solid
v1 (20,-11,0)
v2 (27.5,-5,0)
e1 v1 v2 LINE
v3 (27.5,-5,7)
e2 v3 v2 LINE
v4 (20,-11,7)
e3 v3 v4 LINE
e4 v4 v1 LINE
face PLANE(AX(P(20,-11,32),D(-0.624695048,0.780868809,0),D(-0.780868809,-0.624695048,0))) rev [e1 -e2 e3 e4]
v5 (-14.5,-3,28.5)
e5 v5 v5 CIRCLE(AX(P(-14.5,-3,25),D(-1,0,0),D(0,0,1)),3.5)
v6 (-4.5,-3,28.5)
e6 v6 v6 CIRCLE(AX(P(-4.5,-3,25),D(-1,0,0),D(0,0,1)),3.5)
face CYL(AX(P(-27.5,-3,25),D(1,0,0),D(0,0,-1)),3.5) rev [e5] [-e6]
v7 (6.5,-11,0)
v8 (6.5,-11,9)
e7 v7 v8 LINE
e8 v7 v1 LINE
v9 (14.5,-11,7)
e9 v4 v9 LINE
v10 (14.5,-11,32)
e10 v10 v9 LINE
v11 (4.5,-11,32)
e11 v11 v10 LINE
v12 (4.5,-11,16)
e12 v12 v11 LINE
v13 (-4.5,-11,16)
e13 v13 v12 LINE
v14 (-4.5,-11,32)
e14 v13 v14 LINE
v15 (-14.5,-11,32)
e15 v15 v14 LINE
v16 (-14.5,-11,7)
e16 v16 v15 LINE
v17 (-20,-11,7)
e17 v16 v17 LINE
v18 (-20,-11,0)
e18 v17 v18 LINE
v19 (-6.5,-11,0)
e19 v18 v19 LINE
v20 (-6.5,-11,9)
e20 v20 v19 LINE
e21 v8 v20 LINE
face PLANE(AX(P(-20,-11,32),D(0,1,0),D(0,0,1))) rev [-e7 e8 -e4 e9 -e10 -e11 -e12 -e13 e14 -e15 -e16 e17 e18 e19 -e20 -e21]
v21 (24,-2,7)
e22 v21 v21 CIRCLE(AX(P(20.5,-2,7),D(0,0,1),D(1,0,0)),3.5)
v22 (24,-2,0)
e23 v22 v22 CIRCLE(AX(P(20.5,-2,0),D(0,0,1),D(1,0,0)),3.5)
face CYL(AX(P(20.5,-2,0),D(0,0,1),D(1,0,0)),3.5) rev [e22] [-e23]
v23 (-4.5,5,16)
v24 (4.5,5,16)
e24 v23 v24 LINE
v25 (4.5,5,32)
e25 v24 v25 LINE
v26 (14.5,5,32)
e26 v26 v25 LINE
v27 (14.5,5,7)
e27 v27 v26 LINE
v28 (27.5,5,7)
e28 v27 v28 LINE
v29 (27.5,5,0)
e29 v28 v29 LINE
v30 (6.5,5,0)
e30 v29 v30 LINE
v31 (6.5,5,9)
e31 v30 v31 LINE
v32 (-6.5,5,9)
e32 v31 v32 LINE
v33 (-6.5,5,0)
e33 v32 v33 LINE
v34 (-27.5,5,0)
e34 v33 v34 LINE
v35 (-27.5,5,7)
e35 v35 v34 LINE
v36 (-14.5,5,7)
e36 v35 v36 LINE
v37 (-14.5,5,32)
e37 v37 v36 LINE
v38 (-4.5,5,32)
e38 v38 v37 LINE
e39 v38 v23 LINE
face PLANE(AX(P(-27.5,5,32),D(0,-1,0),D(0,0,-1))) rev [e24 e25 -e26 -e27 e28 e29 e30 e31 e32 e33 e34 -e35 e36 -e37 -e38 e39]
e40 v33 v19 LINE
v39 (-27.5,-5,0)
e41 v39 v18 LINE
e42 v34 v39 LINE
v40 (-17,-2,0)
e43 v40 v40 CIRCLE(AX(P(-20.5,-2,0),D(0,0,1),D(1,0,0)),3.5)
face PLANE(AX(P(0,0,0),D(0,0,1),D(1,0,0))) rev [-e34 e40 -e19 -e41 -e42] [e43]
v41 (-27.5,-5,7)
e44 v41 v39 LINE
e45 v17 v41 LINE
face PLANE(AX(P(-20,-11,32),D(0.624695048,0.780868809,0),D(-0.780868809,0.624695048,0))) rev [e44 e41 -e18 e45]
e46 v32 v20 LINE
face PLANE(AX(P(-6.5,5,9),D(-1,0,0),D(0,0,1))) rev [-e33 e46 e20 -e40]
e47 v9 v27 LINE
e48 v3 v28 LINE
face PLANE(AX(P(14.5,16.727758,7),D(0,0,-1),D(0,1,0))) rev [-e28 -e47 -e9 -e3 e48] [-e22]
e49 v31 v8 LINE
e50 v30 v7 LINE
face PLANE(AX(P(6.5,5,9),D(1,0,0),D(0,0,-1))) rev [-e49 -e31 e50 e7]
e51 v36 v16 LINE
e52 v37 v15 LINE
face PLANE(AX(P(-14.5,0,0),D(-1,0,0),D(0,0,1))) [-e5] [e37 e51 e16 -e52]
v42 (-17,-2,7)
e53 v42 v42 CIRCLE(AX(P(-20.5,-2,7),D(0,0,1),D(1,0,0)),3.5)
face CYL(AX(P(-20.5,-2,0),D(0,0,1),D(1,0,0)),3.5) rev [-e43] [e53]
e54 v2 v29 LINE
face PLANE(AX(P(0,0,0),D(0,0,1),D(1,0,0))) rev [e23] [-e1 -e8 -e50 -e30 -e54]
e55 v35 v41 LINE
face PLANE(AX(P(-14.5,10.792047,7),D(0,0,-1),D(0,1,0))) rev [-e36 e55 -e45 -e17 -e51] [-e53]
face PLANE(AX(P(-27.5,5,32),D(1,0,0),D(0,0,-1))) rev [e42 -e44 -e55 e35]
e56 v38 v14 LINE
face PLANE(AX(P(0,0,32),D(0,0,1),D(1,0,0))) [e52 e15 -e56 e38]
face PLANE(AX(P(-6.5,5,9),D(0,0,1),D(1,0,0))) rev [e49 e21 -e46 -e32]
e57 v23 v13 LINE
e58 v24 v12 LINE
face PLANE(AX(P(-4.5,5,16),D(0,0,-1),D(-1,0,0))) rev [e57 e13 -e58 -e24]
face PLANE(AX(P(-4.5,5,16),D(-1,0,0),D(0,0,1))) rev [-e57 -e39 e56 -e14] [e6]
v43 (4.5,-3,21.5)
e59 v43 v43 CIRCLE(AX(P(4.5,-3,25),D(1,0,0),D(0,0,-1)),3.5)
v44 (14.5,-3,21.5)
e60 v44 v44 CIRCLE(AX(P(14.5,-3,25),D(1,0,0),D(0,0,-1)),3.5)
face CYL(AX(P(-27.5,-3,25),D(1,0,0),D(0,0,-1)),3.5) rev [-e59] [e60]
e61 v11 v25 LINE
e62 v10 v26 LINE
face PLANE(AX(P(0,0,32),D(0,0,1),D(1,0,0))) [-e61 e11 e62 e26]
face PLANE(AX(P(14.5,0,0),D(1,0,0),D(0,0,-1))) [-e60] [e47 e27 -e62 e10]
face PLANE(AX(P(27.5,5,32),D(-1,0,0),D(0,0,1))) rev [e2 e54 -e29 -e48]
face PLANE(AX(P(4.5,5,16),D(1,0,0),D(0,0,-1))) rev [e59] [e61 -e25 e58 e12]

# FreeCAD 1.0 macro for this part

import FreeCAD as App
import Part
import Sketcher
Q = App.Units.Quantity

doc = App.newDocument("Part")
body = doc.addObject("PartDesign::Body", "Body")

# Sketch on XY plane
sketch1 = body.newObject("Sketcher::SketchObject", "Sketch")
sketch1.AttachmentSupport = (doc.getObject("XY_Plane"), [""])
sketch1.MapMode = "FlatFace"
sketch1.addGeometry([
    Part.LineSegment(App.Vector(-28, -5, 0), App.Vector(-20, -11, 0)),  # 0
    Part.LineSegment(App.Vector(-20, -11, 0), App.Vector(20, -11, 0)),  # 1
    Part.LineSegment(App.Vector(20, -11, 0), App.Vector(28, -5, 0)),  # 2
    Part.LineSegment(App.Vector(28, -5, 0), App.Vector(28, 5, 0)),  # 3
    Part.LineSegment(App.Vector(28, 5, 0), App.Vector(-28, 5, 0)),  # 4
    Part.LineSegment(App.Vector(-28, 5, 0), App.Vector(-28, -5, 0)),  # 5
], False)
sketch1.addConstraint([
    Sketcher.Constraint("Coincident", 0, 2, 1, 1),
    Sketcher.Constraint("Coincident", 1, 2, 2, 1),
    Sketcher.Constraint("Coincident", 2, 2, 3, 1),
    Sketcher.Constraint("Coincident", 3, 2, 4, 1),
    Sketcher.Constraint("Coincident", 4, 2, 5, 1),
    Sketcher.Constraint("Coincident", 5, 2, 0, 1),
    Sketcher.Constraint("Horizontal", 1),
    Sketcher.Constraint("Vertical", 3),
    Sketcher.Constraint("Horizontal", 4),
    Sketcher.Constraint("Vertical", 5),
    Sketcher.Constraint("Symmetric", 2, 2, 4, 2, -1, 1),
    Sketcher.Constraint("Horizontal", 2, 2, 5, 2),
    Sketcher.Constraint("Equal", 0, 2),
    Sketcher.Constraint("DistanceX", 1, 1, 1, 2, Q("40 mm")),
    Sketcher.Constraint("DistanceX", 4, 2, 4, 1, Q("55 mm")),
    Sketcher.Constraint("DistanceY", 3, 1, 3, 2, Q("10 mm")),
    Sketcher.Constraint("DistanceY", 0, 2, -1, 1, Q("11 mm")),
])
pad1 = body.newObject("PartDesign::Pad", "Pad")
pad1.Profile = sketch1
pad1.Length = 32

# Sketch on YZ plane
sketch2 = body.newObject("Sketcher::SketchObject", "Sketch001")
sketch2.AttachmentSupport = (doc.getObject("YZ_Plane"), [""])
sketch2.MapMode = "FlatFace"
sketch2.AttachmentOffset = App.Placement(App.Vector(0, 0, 27.5), App.Rotation())
sketch2.addGeometry([
    Part.LineSegment(App.Vector(17, 35, 0), App.Vector(-17, 35, 0)),
    Part.LineSegment(App.Vector(-17, 35, 0), App.Vector(-17, 7, 0)),
    Part.LineSegment(App.Vector(-17, 7, 0), App.Vector(17, 7, 0)),
    Part.LineSegment(App.Vector(17, 7, 0), App.Vector(17, 35, 0)),
], False)
sketch2.addConstraint([
    Sketcher.Constraint("Coincident", 0, 2, 1, 1),
    Sketcher.Constraint("Coincident", 1, 2, 2, 1),
    Sketcher.Constraint("Coincident", 2, 2, 3, 1),
    Sketcher.Constraint("Coincident", 3, 2, 0, 1),
    Sketcher.Constraint("Horizontal", 0),
    Sketcher.Constraint("Vertical", 1),
    Sketcher.Constraint("Horizontal", 2),
    Sketcher.Constraint("Vertical", 3),
    Sketcher.Constraint("DistanceY", -1, 1, 1, 2, Q("7 mm")),
    Sketcher.Constraint("DistanceX", 0, 2, 0, 1, Q("33.455516 mm")),
    Sketcher.Constraint("DistanceY", 1, 2, 1, 1, Q("28.149247 mm")),
    Sketcher.Constraint("DistanceX", 0, 2, -1, 1, Q("16.727758 mm")),
])
pocket1 = body.newObject("PartDesign::Pocket", "Pocket")
pocket1.Profile = sketch2
pocket1.Length = 13

# Sketch on YZ plane
sketch3 = body.newObject("Sketcher::SketchObject", "Sketch002")
sketch3.AttachmentSupport = (doc.getObject("YZ_Plane"), [""])
sketch3.MapMode = "FlatFace"
sketch3.AttachmentOffset = App.Placement(App.Vector(0, 0, -27.5), App.Rotation())
sketch3.addGeometry([
    Part.LineSegment(App.Vector(11, 7, 0), App.Vector(-18, 7, 0)),
    Part.LineSegment(App.Vector(-18, 7, 0), App.Vector(-18, 39, 0)),
    Part.LineSegment(App.Vector(-18, 39, 0), App.Vector(11, 39, 0)),
    Part.LineSegment(App.Vector(11, 39, 0), App.Vector(11, 7, 0)),
], False)
sketch3.addConstraint([
    Sketcher.Constraint("Coincident", 0, 2, 1, 1),
    Sketcher.Constraint("Coincident", 1, 2, 2, 1),
    Sketcher.Constraint("Coincident", 2, 2, 3, 1),
    Sketcher.Constraint("Coincident", 3, 2, 0, 1),
    Sketcher.Constraint("Horizontal", 0),
    Sketcher.Constraint("Vertical", 1),
    Sketcher.Constraint("Horizontal", 2),
    Sketcher.Constraint("Vertical", 3),
    Sketcher.Constraint("DistanceY", -1, 1, 0, 2, Q("7 mm")),
    Sketcher.Constraint("DistanceY", 1, 1, 1, 2, Q("32.272759 mm")),
    Sketcher.Constraint("DistanceX", 0, 2, 0, 1, Q("29.277833 mm")),
    Sketcher.Constraint("DistanceX", 0, 2, -1, 1, Q("18.485786 mm")),
])
pocket2 = body.newObject("PartDesign::Pocket", "Pocket001")
pocket2.Profile = sketch3
pocket2.Length = 13
pocket2.Reversed = True

# Sketch on XZ plane
sketch4 = body.newObject("Sketcher::SketchObject", "Sketch003")
sketch4.AttachmentSupport = (doc.getObject("XZ_Plane"), [""])
sketch4.MapMode = "FlatFace"
sketch4.AttachmentOffset = App.Placement(App.Vector(0, 0, 11), App.Rotation())
sketch4.addGeometry([
    Part.LineSegment(App.Vector(-6, 9, 0), App.Vector(-6, 0, 0)),
    Part.LineSegment(App.Vector(-6, 0, 0), App.Vector(6, 0, 0)),
    Part.LineSegment(App.Vector(6, 0, 0), App.Vector(6, 9, 0)),
    Part.LineSegment(App.Vector(6, 9, 0), App.Vector(-6, 9, 0)),
], False)
sketch4.addConstraint([
    Sketcher.Constraint("Coincident", 0, 2, 1, 1),
    Sketcher.Constraint("Coincident", 1, 2, 2, 1),
    Sketcher.Constraint("Coincident", 2, 2, 3, 1),
    Sketcher.Constraint("Coincident", 3, 2, 0, 1),
    Sketcher.Constraint("Vertical", 0),
    Sketcher.Constraint("Horizontal", 1),
    Sketcher.Constraint("Vertical", 2),
    Sketcher.Constraint("Horizontal", 3),
    Sketcher.Constraint("Symmetric", 0, 2, 1, 2, -1, 1),
    Sketcher.Constraint("DistanceX", 1, 1, 1, 2, Q("13 mm")),
    Sketcher.Constraint("DistanceY", 0, 2, 0, 1, Q("9 mm")),
])
pocket3 = body.newObject("PartDesign::Pocket", "Pocket002")
pocket3.Profile = sketch4
pocket3.Type = "ThroughAll"

# Sketch on XZ plane
sketch5 = body.newObject("Sketcher::SketchObject", "Sketch004")
sketch5.AttachmentSupport = (doc.getObject("XZ_Plane"), [""])
sketch5.MapMode = "FlatFace"
sketch5.AttachmentOffset = App.Placement(App.Vector(0, 0, 11), App.Rotation())
sketch5.addGeometry([
    Part.LineSegment(App.Vector(-4, 39, 0), App.Vector(-4, 16, 0)),
    Part.LineSegment(App.Vector(-4, 16, 0), App.Vector(4, 16, 0)),
    Part.LineSegment(App.Vector(4, 16, 0), App.Vector(4, 39, 0)),
    Part.LineSegment(App.Vector(4, 39, 0), App.Vector(-4, 39, 0)),
], False)
sketch5.addConstraint([
    Sketcher.Constraint("Coincident", 0, 2, 1, 1),
    Sketcher.Constraint("Coincident", 1, 2, 2, 1),
    Sketcher.Constraint("Coincident", 2, 2, 3, 1),
    Sketcher.Constraint("Coincident", 3, 2, 0, 1),
    Sketcher.Constraint("Vertical", 0),
    Sketcher.Constraint("Horizontal", 1),
    Sketcher.Constraint("Vertical", 2),
    Sketcher.Constraint("Horizontal", 3),
    Sketcher.Constraint("DistanceX", 1, 1, 1, 2, Q("9 mm")),
    Sketcher.Constraint("DistanceY", 0, 2, 0, 1, Q("23 mm")),
    Sketcher.Constraint("DistanceY", -1, 1, 0, 2, Q("16 mm")),
    Sketcher.Constraint("DistanceX", 0, 2, -1, 1, Q("4.5 mm")),
])
pocket4 = body.newObject("PartDesign::Pocket", "Pocket003")
pocket4.Profile = sketch5
pocket4.Type = "ThroughAll"

# Sketch on YZ plane
sketch6 = body.newObject("Sketcher::SketchObject", "Sketch005")
sketch6.AttachmentSupport = (doc.getObject("YZ_Plane"), [""])
sketch6.MapMode = "FlatFace"
sketch6.AttachmentOffset = App.Placement(App.Vector(0, 0, 14.5), App.Rotation())
sketch6.addGeometry(Part.Circle(App.Vector(-3, 25, 0), App.Vector(0, 0, 1), 3.5), False)
sketch6.addConstraint([
    Sketcher.Constraint("Diameter", 0, Q("7 mm")),
    Sketcher.Constraint("DistanceX", 0, 3, -1, 1, Q("3 mm")),
    Sketcher.Constraint("DistanceY", -1, 1, 0, 3, Q("25 mm")),
])
pocket5 = body.newObject("PartDesign::Pocket", "Pocket004")
pocket5.Profile = sketch6
pocket5.Type = "ThroughAll"

# Sketch on XY plane
sketch7 = body.newObject("Sketcher::SketchObject", "Sketch006")
sketch7.AttachmentSupport = (doc.getObject("XY_Plane"), [""])
sketch7.MapMode = "FlatFace"
sketch7.AttachmentOffset = App.Placement(App.Vector(0, 0, 7), App.Rotation())
sketch7.addGeometry([
    Part.Circle(App.Vector(20.5, -2, 0), App.Vector(0, 0, 1), 3.5),
    Part.Circle(App.Vector(-20.5, -2, 0), App.Vector(0, 0, 1), 3.5),
], False)
sketch7.addConstraint([
    Sketcher.Constraint("Equal", 0, 1),
    Sketcher.Constraint("Symmetric", 0, 3, 1, 3, -2),
    Sketcher.Constraint("Diameter", 0, Q("7 mm")),
    Sketcher.Constraint("DistanceY", 0, 3, -1, 1, Q("2 mm")),
    Sketcher.Constraint("DistanceX", 1, 3, 0, 3, Q("41 mm")),
])
pocket6 = body.newObject("PartDesign::Pocket", "Pocket005")
pocket6.Profile = sketch7
pocket6.Type = "ThroughAll"

doc.recompute()
